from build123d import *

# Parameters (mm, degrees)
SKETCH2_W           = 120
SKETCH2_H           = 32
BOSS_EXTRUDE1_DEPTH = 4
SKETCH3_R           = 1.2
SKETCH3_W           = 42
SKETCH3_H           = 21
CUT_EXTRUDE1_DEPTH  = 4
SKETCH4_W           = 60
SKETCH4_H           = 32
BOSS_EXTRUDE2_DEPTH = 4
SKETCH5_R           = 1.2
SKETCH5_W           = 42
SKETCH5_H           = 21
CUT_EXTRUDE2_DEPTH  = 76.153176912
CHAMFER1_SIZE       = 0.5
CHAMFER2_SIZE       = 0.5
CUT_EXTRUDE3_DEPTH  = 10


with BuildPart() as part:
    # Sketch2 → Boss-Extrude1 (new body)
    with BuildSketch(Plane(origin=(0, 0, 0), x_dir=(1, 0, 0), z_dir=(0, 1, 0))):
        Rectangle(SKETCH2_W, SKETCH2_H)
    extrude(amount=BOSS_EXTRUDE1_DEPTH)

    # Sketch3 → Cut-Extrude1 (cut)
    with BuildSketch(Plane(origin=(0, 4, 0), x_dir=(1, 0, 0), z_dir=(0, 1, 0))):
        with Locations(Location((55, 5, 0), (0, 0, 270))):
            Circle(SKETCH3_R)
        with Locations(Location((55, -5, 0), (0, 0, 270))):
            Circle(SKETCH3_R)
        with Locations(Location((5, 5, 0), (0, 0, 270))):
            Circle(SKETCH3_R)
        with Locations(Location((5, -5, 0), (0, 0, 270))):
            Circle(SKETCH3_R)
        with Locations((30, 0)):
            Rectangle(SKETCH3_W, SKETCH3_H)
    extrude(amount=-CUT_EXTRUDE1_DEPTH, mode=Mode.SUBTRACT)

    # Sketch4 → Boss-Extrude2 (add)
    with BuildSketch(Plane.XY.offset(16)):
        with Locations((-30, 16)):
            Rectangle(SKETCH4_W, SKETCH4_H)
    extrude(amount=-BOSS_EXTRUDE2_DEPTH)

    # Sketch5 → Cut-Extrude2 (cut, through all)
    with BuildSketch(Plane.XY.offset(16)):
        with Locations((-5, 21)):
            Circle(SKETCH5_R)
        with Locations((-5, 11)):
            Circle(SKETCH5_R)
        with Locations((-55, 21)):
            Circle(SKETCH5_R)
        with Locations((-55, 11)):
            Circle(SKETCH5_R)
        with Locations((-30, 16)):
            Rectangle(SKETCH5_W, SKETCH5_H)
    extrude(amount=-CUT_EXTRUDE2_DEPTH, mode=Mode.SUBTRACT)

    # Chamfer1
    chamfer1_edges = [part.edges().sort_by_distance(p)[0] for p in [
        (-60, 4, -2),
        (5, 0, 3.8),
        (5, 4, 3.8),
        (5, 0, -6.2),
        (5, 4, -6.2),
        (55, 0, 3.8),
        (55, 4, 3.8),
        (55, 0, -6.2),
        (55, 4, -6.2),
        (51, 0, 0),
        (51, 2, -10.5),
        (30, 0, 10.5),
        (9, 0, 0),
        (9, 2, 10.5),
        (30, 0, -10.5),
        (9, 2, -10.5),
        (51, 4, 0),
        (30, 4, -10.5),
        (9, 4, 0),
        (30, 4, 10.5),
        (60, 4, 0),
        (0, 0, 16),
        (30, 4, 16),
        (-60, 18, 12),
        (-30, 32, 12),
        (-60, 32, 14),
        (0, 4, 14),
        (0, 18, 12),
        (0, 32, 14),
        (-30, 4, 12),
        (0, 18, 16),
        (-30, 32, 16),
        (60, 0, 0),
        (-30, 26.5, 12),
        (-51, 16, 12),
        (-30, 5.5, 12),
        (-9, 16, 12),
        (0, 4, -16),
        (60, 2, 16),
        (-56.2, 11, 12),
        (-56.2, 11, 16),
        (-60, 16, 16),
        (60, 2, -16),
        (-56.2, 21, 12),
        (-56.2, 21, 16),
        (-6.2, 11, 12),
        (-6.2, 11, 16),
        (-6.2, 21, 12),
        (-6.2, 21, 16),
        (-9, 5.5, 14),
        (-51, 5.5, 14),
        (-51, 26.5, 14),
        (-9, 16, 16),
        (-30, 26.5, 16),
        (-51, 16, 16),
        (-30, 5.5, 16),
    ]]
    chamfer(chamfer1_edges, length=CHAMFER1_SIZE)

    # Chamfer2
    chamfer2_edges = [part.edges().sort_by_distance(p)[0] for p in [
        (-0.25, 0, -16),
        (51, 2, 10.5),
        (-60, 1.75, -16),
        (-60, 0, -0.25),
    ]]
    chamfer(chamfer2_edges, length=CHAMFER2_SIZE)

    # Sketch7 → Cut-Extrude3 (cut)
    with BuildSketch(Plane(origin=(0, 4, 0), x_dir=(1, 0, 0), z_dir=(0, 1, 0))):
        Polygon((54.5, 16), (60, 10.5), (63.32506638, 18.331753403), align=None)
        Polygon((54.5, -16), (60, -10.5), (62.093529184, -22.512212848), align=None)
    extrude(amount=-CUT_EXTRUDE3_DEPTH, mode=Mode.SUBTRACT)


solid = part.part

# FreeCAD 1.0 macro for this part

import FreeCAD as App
import Part
import Sketcher
Q = App.Units.Quantity


def edges_at(feature, points):
    """Names of the edges that pass closest to the given points."""
    edges = feature.Shape.Edges
    near = lambda p: min(range(len(edges)), key=lambda i: edges[i].distToShape(Part.Vertex(*p))[0])
    return sorted({f"Edge{near(p) + 1}" for p in points})

doc = App.newDocument("Part")
body = doc.addObject("PartDesign::Body", "Body")

sketch1 = doc.addObject("Sketcher::SketchObject", "Sketch")
body.addObject(sketch1)
sketch1.AttachmentSupport = (doc.XZ_Plane, [""])
sketch1.MapMode = "FlatFace"
sketch1.addGeometry(Part.LineSegment(App.Vector(-60, -16, 0), App.Vector(-60, 16, 0)), False)
sketch1.addGeometry(Part.LineSegment(App.Vector(-60, 16, 0), App.Vector(60, 16, 0)), False)
sketch1.addGeometry(Part.LineSegment(App.Vector(60, 16, 0), App.Vector(60, -16, 0)), False)
sketch1.addGeometry(Part.LineSegment(App.Vector(60, -16, 0), App.Vector(-60, -16, 0)), False)
sketch1.addConstraint(Sketcher.Constraint("Coincident", 0, 2, 1, 1))
sketch1.addConstraint(Sketcher.Constraint("Coincident", 1, 2, 2, 1))
sketch1.addConstraint(Sketcher.Constraint("Coincident", 2, 2, 3, 1))
sketch1.addConstraint(Sketcher.Constraint("Coincident", 3, 2, 0, 1))
sketch1.addConstraint(Sketcher.Constraint("Vertical", 0))
sketch1.addConstraint(Sketcher.Constraint("Horizontal", 1))
sketch1.addConstraint(Sketcher.Constraint("Vertical", 2))
sketch1.addConstraint(Sketcher.Constraint("Horizontal", 3))
sketch1.addConstraint(Sketcher.Constraint("Symmetric", 0, 2, 2, 2, -1, 1))
sketch1.addConstraint(Sketcher.Constraint("DistanceX", 1, 1, 1, 2, Q("120 mm")))
sketch1.addConstraint(Sketcher.Constraint("DistanceY", 0, 1, 0, 2, Q("32 mm")))
pad1 = doc.addObject("PartDesign::Pad", "Pad")
body.addObject(pad1)
pad1.Profile = sketch1
pad1.Length = 4
pad1.Reversed = True

sketch2 = doc.addObject("Sketcher::SketchObject", "Sketch001")
body.addObject(sketch2)
sketch2.AttachmentSupport = (doc.XZ_Plane, [""])
sketch2.MapMode = "FlatFace"
sketch2.AttachmentOffset = App.Placement(App.Vector(0, 0, -4), App.Rotation())
sketch2.addGeometry(Part.Circle(App.Vector(55, -5, 0), App.Vector(0, 0, 1), 1.2), False)
sketch2.addGeometry(Part.Circle(App.Vector(55, 5, 0), App.Vector(0, 0, 1), 1.2), False)
sketch2.addGeometry(Part.Circle(App.Vector(5, -5, 0), App.Vector(0, 0, 1), 1.2), False)
sketch2.addGeometry(Part.Circle(App.Vector(5, 5, 0), App.Vector(0, 0, 1), 1.2), False)
sketch2.addGeometry(Part.LineSegment(App.Vector(9, -10.5, 0), App.Vector(9, 10.5, 0)), False)
sketch2.addGeometry(Part.LineSegment(App.Vector(9, 10.5, 0), App.Vector(51, 10.5, 0)), False)
sketch2.addGeometry(Part.LineSegment(App.Vector(51, 10.5, 0), App.Vector(51, -10.5, 0)), False)
sketch2.addGeometry(Part.LineSegment(App.Vector(51, -10.5, 0), App.Vector(9, -10.5, 0)), False)
sketch2.addConstraint(Sketcher.Constraint("Coincident", 4, 2, 5, 1))
sketch2.addConstraint(Sketcher.Constraint("Coincident", 5, 2, 6, 1))
sketch2.addConstraint(Sketcher.Constraint("Coincident", 6, 2, 7, 1))
sketch2.addConstraint(Sketcher.Constraint("Coincident", 7, 2, 4, 1))
sketch2.addConstraint(Sketcher.Constraint("Vertical", 4))
sketch2.addConstraint(Sketcher.Constraint("Horizontal", 5))
sketch2.addConstraint(Sketcher.Constraint("Vertical", 6))
sketch2.addConstraint(Sketcher.Constraint("Horizontal", 7))
sketch2.addConstraint(Sketcher.Constraint("Equal", 0, 1))
sketch2.addConstraint(Sketcher.Constraint("Equal", 1, 2))
sketch2.addConstraint(Sketcher.Constraint("Equal", 2, 3))
sketch2.addConstraint(Sketcher.Constraint("Symmetric", 0, 3, 1, 3, -1))
sketch2.addConstraint(Sketcher.Constraint("Symmetric", 2, 3, 3, 3, -1))
sketch2.addConstraint(Sketcher.Constraint("Horizontal", 0, 3, 2, 3))
sketch2.addConstraint(Sketcher.Constraint("Diameter", 0, Q("2.4 mm")))
sketch2.addConstraint(Sketcher.Constraint("DistanceX", 5, 1, 5, 2, Q("42 mm")))
sketch2.addConstraint(Sketcher.Constraint("DistanceY", 4, 1, 4, 2, Q("21 mm")))
sketch2.addConstraint(Sketcher.Constraint("DistanceX", -1, 1, 0, 3, Q("55 mm")))
sketch2.addConstraint(Sketcher.Constraint("DistanceY", 0, 3, -1, 1, Q("5 mm")))
sketch2.addConstraint(Sketcher.Constraint("DistanceX", -1, 1, 2, 3, Q("5 mm")))
sketch2.addConstraint(Sketcher.Constraint("DistanceX", -1, 1, 4, 2, Q("9 mm")))
sketch2.addConstraint(Sketcher.Constraint("DistanceY", -1, 1, 4, 2, Q("10.5 mm")))
pocket1 = doc.addObject("PartDesign::Pocket", "Pocket")
body.addObject(pocket1)
pocket1.Profile = sketch2
pocket1.Length = 4
pocket1.Reversed = True

sketch3 = doc.addObject("Sketcher::SketchObject", "Sketch002")
body.addObject(sketch3)
sketch3.AttachmentSupport = (doc.XY_Plane, [""])
sketch3.MapMode = "FlatFace"
sketch3.AttachmentOffset = App.Placement(App.Vector(0, 0, 16), App.Rotation())
sketch3.addGeometry(Part.LineSegment(App.Vector(-60, 32, 0), App.Vector(-60, 0, 0)), False)
sketch3.addGeometry(Part.LineSegment(App.Vector(-60, 0, 0), App.Vector(0, 0, 0)), False)
sketch3.addGeometry(Part.LineSegment(App.Vector(0, 0, 0), App.Vector(0, 32, 0)), False)
sketch3.addGeometry(Part.LineSegment(App.Vector(0, 32, 0), App.Vector(-60, 32, 0)), False)
sketch3.addConstraint(Sketcher.Constraint("Coincident", 0, 2, 1, 1))
sketch3.addConstraint(Sketcher.Constraint("Coincident", 1, 2, 2, 1))
sketch3.addConstraint(Sketcher.Constraint("Coincident", 2, 2, 3, 1))
sketch3.addConstraint(Sketcher.Constraint("Coincident", 3, 2, 0, 1))
sketch3.addConstraint(Sketcher.Constraint("Vertical", 0))
sketch3.addConstraint(Sketcher.Constraint("Horizontal", 1))
sketch3.addConstraint(Sketcher.Constraint("Vertical", 2))
sketch3.addConstraint(Sketcher.Constraint("Horizontal", 3))
sketch3.addConstraint(Sketcher.Constraint("Coincident", 1, 2, -1, 1))
sketch3.addConstraint(Sketcher.Constraint("DistanceX", 1, 1, 1, 2, Q("60 mm")))
sketch3.addConstraint(Sketcher.Constraint("DistanceY", 0, 2, 0, 1, Q("32 mm")))
pad2 = doc.addObject("PartDesign::Pad", "Pad001")
body.addObject(pad2)
pad2.Profile = sketch3
pad2.Length = 4
pad2.Reversed = True

sketch4 = doc.addObject("Sketcher::SketchObject", "Sketch003")
body.addObject(sketch4)
sketch4.AttachmentSupport = (doc.XY_Plane, [""])
sketch4.MapMode = "FlatFace"
sketch4.AttachmentOffset = App.Placement(App.Vector(0, 0, 16), App.Rotation())
sketch4.addGeometry(Part.Circle(App.Vector(-5, 21, 0), App.Vector(0, 0, 1), 1.2), False)
sketch4.addGeometry(Part.Circle(App.Vector(-5, 11, 0), App.Vector(0, 0, 1), 1.2), False)
sketch4.addGeometry(Part.Circle(App.Vector(-55, 21, 0), App.Vector(0, 0, 1), 1.2), False)
sketch4.addGeometry(Part.Circle(App.Vector(-55, 11, 0), App.Vector(0, 0, 1), 1.2), False)
sketch4.addGeometry(Part.LineSegment(App.Vector(-51, 26.5, 0), App.Vector(-51, 5.5, 0)), False)
sketch4.addGeometry(Part.LineSegment(App.Vector(-51, 5.5, 0), App.Vector(-9, 5.5, 0)), False)
sketch4.addGeometry(Part.LineSegment(App.Vector(-9, 5.5, 0), App.Vector(-9, 26.5, 0)), False)
sketch4.addGeometry(Part.LineSegment(App.Vector(-9, 26.5, 0), App.Vector(-51, 26.5, 0)), False)
sketch4.addConstraint(Sketcher.Constraint("Coincident", 4, 2, 5, 1))
sketch4.addConstraint(Sketcher.Constraint("Coincident", 5, 2, 6, 1))
sketch4.addConstraint(Sketcher.Constraint("Coincident", 6, 2, 7, 1))
sketch4.addConstraint(Sketcher.Constraint("Coincident", 7, 2, 4, 1))
sketch4.addConstraint(Sketcher.Constraint("Vertical", 4))
sketch4.addConstraint(Sketcher.Constraint("Horizontal", 5))
sketch4.addConstraint(Sketcher.Constraint("Vertical", 6))
sketch4.addConstraint(Sketcher.Constraint("Horizontal", 7))
sketch4.addConstraint(Sketcher.Constraint("Equal", 0, 1))
sketch4.addConstraint(Sketcher.Constraint("Equal", 1, 2))
sketch4.addConstraint(Sketcher.Constraint("Equal", 2, 3))
sketch4.addConstraint(Sketcher.Constraint("Horizontal", 0, 3, 2, 3))
sketch4.addConstraint(Sketcher.Constraint("Horizontal", 1, 3, 3, 3))
sketch4.addConstraint(Sketcher.Constraint("Vertical", 0, 3, 1, 3))
sketch4.addConstraint(Sketcher.Constraint("Vertical", 2, 3, 3, 3))
sketch4.addConstraint(Sketcher.Constraint("Diameter", 0, Q("2.4 mm")))
sketch4.addConstraint(Sketcher.Constraint("DistanceX", 5, 1, 5, 2, Q("42 mm")))
sketch4.addConstraint(Sketcher.Constraint("DistanceY", 4, 2, 4, 1, Q("21 mm")))
sketch4.addConstraint(Sketcher.Constraint("DistanceX", 0, 3, -1, 1, Q("5 mm")))
sketch4.addConstraint(Sketcher.Constraint("DistanceY", -1, 1, 0, 3, Q("21 mm")))
sketch4.addConstraint(Sketcher.Constraint("DistanceY", -1, 1, 1, 3, Q("11 mm")))
sketch4.addConstraint(Sketcher.Constraint("DistanceX", 2, 3, -1, 1, Q("55 mm")))
sketch4.addConstraint(Sketcher.Constraint("DistanceX", 4, 2, -1, 1, Q("51 mm")))
sketch4.addConstraint(Sketcher.Constraint("DistanceY", -1, 1, 4, 2, Q("5.5 mm")))
pocket2 = doc.addObject("PartDesign::Pocket", "Pocket001")
body.addObject(pocket2)
pocket2.Profile = sketch4
pocket2.Type = "ThroughAll"
doc.recompute()

chamfer = doc.addObject("PartDesign::Chamfer", "Chamfer")
body.addObject(chamfer)
chamfer.Base = (pocket2, edges_at(pocket2, [
    (-60, 4, -2),
    (5, 0, 3.8),
    (5, 4, 3.8),
    (5, 0, -6.2),
    (5, 4, -6.2),
    (55, 0, 3.8),
    (55, 4, 3.8),
    (55, 0, -6.2),
    (55, 4, -6.2),
    (51, 0, 0),
    (51, 2, -10.5),
    (30, 0, 10.5),
    (9, 0, 0),
    (9, 2, 10.5),
    (30, 0, -10.5),
    (9, 2, -10.5),
    (51, 4, 0),
    (30, 4, -10.5),
    (9, 4, 0),
    (30, 4, 10.5),
    (60, 4, 0),
    (0, 0, 16),
    (30, 4, 16),
    (-60, 18, 12),
    (-30, 32, 12),
    (-60, 32, 14),
    (0, 4, 14),
    (0, 18, 12),
    (0, 32, 14),
    (-30, 4, 12),
    (0, 18, 16),
    (-30, 32, 16),
    (60, 0, 0),
    (-30, 26.5, 12),
    (-51, 16, 12),
    (-30, 5.5, 12),
    (-9, 16, 12),
    (0, 4, -16),
    (60, 2, 16),
    (-56.2, 11, 12),
    (-56.2, 11, 16),
    (-60, 16, 16),
    (60, 2, -16),
    (-56.2, 21, 12),
    (-56.2, 21, 16),
    (-6.2, 11, 12),
    (-6.2, 11, 16),
    (-6.2, 21, 12),
    (-6.2, 21, 16),
    (-9, 5.5, 14),
    (-51, 5.5, 14),
    (-51, 26.5, 14),
    (-9, 16, 16),
    (-30, 26.5, 16),
    (-51, 16, 16),
    (-30, 5.5, 16),
]))
chamfer.Size = 0.5
doc.recompute()

chamfer2 = doc.addObject("PartDesign::Chamfer", "Chamfer001")
body.addObject(chamfer2)
chamfer2.Base = (chamfer, edges_at(chamfer, [
    (-0.25, 0, -16),
    (51, 2, 10.5),
    (-60, 1.75, -16),
    (-60, 0, -0.25),
]))
chamfer2.Size = 0.5

sketch5 = doc.addObject("Sketcher::SketchObject", "Sketch004")
body.addObject(sketch5)
sketch5.AttachmentSupport = (doc.XZ_Plane, [""])
sketch5.MapMode = "FlatFace"
sketch5.AttachmentOffset = App.Placement(App.Vector(0, 0, -4), App.Rotation())
sketch5.addGeometry(Part.LineSegment(App.Vector(54, -16, 0), App.Vector(60, -10, 0)), False)
sketch5.addGeometry(Part.LineSegment(App.Vector(60, -10, 0), App.Vector(63, -18, 0)), False)
sketch5.addGeometry(Part.LineSegment(App.Vector(63, -18, 0), App.Vector(54, -16, 0)), False)
sketch5.addGeometry(Part.LineSegment(App.Vector(60, 10, 0), App.Vector(54, 16, 0)), False)
sketch5.addGeometry(Part.LineSegment(App.Vector(54, 16, 0), App.Vector(62, 23, 0)), False)
sketch5.addGeometry(Part.LineSegment(App.Vector(62, 23, 0), App.Vector(60, 10, 0)), False)
sketch5.addConstraint(Sketcher.Constraint("Coincident", 0, 2, 1, 1))
sketch5.addConstraint(Sketcher.Constraint("Coincident", 1, 2, 2, 1))
sketch5.addConstraint(Sketcher.Constraint("Coincident", 2, 2, 0, 1))
sketch5.addConstraint(Sketcher.Constraint("Coincident", 3, 2, 4, 1))
sketch5.addConstraint(Sketcher.Constraint("Coincident", 4, 2, 5, 1))
sketch5.addConstraint(Sketcher.Constraint("Coincident", 5, 2, 3, 1))
sketch5.addConstraint(Sketcher.Constraint("Symmetric", 2, 2, 3, 2, -1))
sketch5.addConstraint(Sketcher.Constraint("Symmetric", 0, 2, 5, 2, -1))
sketch5.addConstraint(Sketcher.Constraint("Perpendicular", 0, 3))
sketch5.addConstraint(Sketcher.Constraint("DistanceX", -1, 1, 0, 2, Q("60 mm")))
sketch5.addConstraint(Sketcher.Constraint("DistanceY", 2, 2, -1, 1, Q("16 mm")))
sketch5.addConstraint(Sketcher.Constraint("DistanceY", 0, 2, 5, 2, Q("21 mm")))
sketch5.addConstraint(Sketcher.Constraint("Distance", 4, Q("10.003529 mm")))
sketch5.addConstraint(Sketcher.Constraint("Distance", 5, Q("12.193282 mm")))
sketch5.addConstraint(Sketcher.Constraint("Distance", 1, Q("8.508374 mm")))
sketch5.addConstraint(Sketcher.Constraint("Distance", 2, Q("9.127917 mm")))
pocket3 = doc.addObject("PartDesign::Pocket", "Pocket002")
body.addObject(pocket3)
pocket3.Profile = sketch5
pocket3.Length = 10
pocket3.Reversed = True

doc.recompute()
